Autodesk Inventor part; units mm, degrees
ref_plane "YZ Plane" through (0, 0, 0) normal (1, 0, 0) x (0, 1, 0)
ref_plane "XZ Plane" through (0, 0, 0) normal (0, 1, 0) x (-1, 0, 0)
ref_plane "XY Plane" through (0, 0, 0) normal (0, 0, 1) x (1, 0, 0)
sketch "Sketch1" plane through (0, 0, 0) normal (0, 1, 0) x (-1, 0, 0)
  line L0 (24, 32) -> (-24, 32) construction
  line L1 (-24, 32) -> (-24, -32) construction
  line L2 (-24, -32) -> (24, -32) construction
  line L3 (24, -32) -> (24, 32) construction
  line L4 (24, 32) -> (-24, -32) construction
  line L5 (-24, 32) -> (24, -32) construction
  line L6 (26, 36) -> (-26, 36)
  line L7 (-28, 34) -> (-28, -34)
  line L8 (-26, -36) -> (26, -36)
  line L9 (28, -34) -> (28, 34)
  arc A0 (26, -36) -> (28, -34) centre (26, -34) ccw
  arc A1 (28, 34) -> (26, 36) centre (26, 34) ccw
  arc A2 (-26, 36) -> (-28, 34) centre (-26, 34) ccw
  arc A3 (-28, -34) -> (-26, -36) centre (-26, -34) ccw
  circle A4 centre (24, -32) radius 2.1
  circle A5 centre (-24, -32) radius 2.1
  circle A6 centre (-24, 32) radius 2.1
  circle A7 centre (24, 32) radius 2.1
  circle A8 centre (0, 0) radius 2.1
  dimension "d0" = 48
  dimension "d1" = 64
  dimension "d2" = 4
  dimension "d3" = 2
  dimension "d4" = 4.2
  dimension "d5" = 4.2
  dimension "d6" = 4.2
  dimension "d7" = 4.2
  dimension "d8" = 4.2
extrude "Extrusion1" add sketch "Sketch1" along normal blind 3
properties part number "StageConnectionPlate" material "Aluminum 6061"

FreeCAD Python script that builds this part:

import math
import FreeCAD as App
import Part
import Sketcher
from FreeCAD import Vector
Q = App.Units.Quantity

doc = App.newDocument("Part")
body = doc.addObject("PartDesign::Body", "Body")

# Sketch on XZ plane
sketch1 = body.newObject("Sketcher::SketchObject", "Sketch")
sketch1.AttachmentSupport = (doc.getObject("XZ_Plane"), [""])
sketch1.MapMode = "FlatFace"
sketch1.addGeometry([
    Part.ArcOfCircle(Part.Circle(Vector(-26, 34, 0), Vector(0, 0, 1), 2), math.radians(90), math.radians(180)),  # 0
    Part.LineSegment(Vector(-26, 36, 0), Vector(26, 36, 0)),  # 1
    Part.ArcOfCircle(Part.Circle(Vector(26, 34, 0), Vector(0, 0, 1), 2), math.radians(0), math.radians(90)),  # 2
    Part.LineSegment(Vector(28, 34, 0), Vector(28, -34, 0)),  # 3
    Part.ArcOfCircle(Part.Circle(Vector(26, -34, 0), Vector(0, 0, 1), 2), math.radians(-90), math.radians(0)),  # 4
    Part.LineSegment(Vector(26, -36, 0), Vector(-26, -36, 0)),  # 5
    Part.ArcOfCircle(Part.Circle(Vector(-26, -34, 0), Vector(0, 0, 1), 2), math.radians(180), math.radians(270)),  # 6
    Part.LineSegment(Vector(-28, -34, 0), Vector(-28, 34, 0)),  # 7
    Part.Circle(Vector(24, -32, 0), Vector(0, 0, 1), 2.1),  # 8
    Part.Circle(Vector(-24, -32, 0), Vector(0, 0, 1), 2.1),  # 9
    Part.Circle(Vector(24, 32, 0), Vector(0, 0, 1), 2.1),  # 10
    Part.Circle(Vector(0, 0, 0), Vector(0, 0, 1), 2.1),  # 11
    Part.Circle(Vector(-24, 32, 0), Vector(0, 0, 1), 2.1),  # 12
], False)
sketch1.addConstraint([
    Sketcher.Constraint("Tangent", 0, 1, 1, 1),
    Sketcher.Constraint("Tangent", 1, 2, 2, 2),
    Sketcher.Constraint("Tangent", 2, 1, 3, 1),
    Sketcher.Constraint("Tangent", 3, 2, 4, 2),
    Sketcher.Constraint("Tangent", 4, 1, 5, 1),
    Sketcher.Constraint("Tangent", 5, 2, 6, 2),
    Sketcher.Constraint("Tangent", 6, 1, 7, 1),
    Sketcher.Constraint("Tangent", 7, 2, 0, 2),
    Sketcher.Constraint("Horizontal", 1),
    Sketcher.Constraint("Vertical", 3),
    Sketcher.Constraint("Horizontal", 5),
    Sketcher.Constraint("Vertical", 7),
    Sketcher.Constraint("Coincident", 11, 3, -1, 1),
    Sketcher.Constraint("Equal", 0, 2),
    Sketcher.Constraint("Equal", 2, 4),
    Sketcher.Constraint("Equal", 4, 6),
    Sketcher.Constraint("Equal", 8, 9),
    Sketcher.Constraint("Equal", 9, 10),
    Sketcher.Constraint("Equal", 10, 11),
    Sketcher.Constraint("Equal", 11, 12),
    Sketcher.Constraint("Symmetric", 0, 3, 4, 3, -1, 1),
    Sketcher.Constraint("Symmetric", 9, 3, 10, 3, -1, 1),
    Sketcher.Constraint("Symmetric", 8, 3, 12, 3, -1, 1),
    Sketcher.Constraint("Symmetric", 8, 3, 9, 3, -2),
    Sketcher.Constraint("Radius", 0, Q("2 mm")),
    Sketcher.Constraint("Diameter", 8, Q("4.2 mm")),
    Sketcher.Constraint("DistanceX", 8, 3, 4, 3, Q("2 mm")),
    Sketcher.Constraint("DistanceY", 4, 3, 8, 3, Q("2 mm")),
    Sketcher.Constraint("DistanceX", 9, 3, 8, 3, Q("48 mm")),
    Sketcher.Constraint("DistanceY", 8, 3, 10, 3, Q("64 mm")),
])
pad1 = body.newObject("PartDesign::Pad", "Pad")
pad1.Profile = sketch1
pad1.Length = 3
pad1.Reversed = True

doc.recompute()
